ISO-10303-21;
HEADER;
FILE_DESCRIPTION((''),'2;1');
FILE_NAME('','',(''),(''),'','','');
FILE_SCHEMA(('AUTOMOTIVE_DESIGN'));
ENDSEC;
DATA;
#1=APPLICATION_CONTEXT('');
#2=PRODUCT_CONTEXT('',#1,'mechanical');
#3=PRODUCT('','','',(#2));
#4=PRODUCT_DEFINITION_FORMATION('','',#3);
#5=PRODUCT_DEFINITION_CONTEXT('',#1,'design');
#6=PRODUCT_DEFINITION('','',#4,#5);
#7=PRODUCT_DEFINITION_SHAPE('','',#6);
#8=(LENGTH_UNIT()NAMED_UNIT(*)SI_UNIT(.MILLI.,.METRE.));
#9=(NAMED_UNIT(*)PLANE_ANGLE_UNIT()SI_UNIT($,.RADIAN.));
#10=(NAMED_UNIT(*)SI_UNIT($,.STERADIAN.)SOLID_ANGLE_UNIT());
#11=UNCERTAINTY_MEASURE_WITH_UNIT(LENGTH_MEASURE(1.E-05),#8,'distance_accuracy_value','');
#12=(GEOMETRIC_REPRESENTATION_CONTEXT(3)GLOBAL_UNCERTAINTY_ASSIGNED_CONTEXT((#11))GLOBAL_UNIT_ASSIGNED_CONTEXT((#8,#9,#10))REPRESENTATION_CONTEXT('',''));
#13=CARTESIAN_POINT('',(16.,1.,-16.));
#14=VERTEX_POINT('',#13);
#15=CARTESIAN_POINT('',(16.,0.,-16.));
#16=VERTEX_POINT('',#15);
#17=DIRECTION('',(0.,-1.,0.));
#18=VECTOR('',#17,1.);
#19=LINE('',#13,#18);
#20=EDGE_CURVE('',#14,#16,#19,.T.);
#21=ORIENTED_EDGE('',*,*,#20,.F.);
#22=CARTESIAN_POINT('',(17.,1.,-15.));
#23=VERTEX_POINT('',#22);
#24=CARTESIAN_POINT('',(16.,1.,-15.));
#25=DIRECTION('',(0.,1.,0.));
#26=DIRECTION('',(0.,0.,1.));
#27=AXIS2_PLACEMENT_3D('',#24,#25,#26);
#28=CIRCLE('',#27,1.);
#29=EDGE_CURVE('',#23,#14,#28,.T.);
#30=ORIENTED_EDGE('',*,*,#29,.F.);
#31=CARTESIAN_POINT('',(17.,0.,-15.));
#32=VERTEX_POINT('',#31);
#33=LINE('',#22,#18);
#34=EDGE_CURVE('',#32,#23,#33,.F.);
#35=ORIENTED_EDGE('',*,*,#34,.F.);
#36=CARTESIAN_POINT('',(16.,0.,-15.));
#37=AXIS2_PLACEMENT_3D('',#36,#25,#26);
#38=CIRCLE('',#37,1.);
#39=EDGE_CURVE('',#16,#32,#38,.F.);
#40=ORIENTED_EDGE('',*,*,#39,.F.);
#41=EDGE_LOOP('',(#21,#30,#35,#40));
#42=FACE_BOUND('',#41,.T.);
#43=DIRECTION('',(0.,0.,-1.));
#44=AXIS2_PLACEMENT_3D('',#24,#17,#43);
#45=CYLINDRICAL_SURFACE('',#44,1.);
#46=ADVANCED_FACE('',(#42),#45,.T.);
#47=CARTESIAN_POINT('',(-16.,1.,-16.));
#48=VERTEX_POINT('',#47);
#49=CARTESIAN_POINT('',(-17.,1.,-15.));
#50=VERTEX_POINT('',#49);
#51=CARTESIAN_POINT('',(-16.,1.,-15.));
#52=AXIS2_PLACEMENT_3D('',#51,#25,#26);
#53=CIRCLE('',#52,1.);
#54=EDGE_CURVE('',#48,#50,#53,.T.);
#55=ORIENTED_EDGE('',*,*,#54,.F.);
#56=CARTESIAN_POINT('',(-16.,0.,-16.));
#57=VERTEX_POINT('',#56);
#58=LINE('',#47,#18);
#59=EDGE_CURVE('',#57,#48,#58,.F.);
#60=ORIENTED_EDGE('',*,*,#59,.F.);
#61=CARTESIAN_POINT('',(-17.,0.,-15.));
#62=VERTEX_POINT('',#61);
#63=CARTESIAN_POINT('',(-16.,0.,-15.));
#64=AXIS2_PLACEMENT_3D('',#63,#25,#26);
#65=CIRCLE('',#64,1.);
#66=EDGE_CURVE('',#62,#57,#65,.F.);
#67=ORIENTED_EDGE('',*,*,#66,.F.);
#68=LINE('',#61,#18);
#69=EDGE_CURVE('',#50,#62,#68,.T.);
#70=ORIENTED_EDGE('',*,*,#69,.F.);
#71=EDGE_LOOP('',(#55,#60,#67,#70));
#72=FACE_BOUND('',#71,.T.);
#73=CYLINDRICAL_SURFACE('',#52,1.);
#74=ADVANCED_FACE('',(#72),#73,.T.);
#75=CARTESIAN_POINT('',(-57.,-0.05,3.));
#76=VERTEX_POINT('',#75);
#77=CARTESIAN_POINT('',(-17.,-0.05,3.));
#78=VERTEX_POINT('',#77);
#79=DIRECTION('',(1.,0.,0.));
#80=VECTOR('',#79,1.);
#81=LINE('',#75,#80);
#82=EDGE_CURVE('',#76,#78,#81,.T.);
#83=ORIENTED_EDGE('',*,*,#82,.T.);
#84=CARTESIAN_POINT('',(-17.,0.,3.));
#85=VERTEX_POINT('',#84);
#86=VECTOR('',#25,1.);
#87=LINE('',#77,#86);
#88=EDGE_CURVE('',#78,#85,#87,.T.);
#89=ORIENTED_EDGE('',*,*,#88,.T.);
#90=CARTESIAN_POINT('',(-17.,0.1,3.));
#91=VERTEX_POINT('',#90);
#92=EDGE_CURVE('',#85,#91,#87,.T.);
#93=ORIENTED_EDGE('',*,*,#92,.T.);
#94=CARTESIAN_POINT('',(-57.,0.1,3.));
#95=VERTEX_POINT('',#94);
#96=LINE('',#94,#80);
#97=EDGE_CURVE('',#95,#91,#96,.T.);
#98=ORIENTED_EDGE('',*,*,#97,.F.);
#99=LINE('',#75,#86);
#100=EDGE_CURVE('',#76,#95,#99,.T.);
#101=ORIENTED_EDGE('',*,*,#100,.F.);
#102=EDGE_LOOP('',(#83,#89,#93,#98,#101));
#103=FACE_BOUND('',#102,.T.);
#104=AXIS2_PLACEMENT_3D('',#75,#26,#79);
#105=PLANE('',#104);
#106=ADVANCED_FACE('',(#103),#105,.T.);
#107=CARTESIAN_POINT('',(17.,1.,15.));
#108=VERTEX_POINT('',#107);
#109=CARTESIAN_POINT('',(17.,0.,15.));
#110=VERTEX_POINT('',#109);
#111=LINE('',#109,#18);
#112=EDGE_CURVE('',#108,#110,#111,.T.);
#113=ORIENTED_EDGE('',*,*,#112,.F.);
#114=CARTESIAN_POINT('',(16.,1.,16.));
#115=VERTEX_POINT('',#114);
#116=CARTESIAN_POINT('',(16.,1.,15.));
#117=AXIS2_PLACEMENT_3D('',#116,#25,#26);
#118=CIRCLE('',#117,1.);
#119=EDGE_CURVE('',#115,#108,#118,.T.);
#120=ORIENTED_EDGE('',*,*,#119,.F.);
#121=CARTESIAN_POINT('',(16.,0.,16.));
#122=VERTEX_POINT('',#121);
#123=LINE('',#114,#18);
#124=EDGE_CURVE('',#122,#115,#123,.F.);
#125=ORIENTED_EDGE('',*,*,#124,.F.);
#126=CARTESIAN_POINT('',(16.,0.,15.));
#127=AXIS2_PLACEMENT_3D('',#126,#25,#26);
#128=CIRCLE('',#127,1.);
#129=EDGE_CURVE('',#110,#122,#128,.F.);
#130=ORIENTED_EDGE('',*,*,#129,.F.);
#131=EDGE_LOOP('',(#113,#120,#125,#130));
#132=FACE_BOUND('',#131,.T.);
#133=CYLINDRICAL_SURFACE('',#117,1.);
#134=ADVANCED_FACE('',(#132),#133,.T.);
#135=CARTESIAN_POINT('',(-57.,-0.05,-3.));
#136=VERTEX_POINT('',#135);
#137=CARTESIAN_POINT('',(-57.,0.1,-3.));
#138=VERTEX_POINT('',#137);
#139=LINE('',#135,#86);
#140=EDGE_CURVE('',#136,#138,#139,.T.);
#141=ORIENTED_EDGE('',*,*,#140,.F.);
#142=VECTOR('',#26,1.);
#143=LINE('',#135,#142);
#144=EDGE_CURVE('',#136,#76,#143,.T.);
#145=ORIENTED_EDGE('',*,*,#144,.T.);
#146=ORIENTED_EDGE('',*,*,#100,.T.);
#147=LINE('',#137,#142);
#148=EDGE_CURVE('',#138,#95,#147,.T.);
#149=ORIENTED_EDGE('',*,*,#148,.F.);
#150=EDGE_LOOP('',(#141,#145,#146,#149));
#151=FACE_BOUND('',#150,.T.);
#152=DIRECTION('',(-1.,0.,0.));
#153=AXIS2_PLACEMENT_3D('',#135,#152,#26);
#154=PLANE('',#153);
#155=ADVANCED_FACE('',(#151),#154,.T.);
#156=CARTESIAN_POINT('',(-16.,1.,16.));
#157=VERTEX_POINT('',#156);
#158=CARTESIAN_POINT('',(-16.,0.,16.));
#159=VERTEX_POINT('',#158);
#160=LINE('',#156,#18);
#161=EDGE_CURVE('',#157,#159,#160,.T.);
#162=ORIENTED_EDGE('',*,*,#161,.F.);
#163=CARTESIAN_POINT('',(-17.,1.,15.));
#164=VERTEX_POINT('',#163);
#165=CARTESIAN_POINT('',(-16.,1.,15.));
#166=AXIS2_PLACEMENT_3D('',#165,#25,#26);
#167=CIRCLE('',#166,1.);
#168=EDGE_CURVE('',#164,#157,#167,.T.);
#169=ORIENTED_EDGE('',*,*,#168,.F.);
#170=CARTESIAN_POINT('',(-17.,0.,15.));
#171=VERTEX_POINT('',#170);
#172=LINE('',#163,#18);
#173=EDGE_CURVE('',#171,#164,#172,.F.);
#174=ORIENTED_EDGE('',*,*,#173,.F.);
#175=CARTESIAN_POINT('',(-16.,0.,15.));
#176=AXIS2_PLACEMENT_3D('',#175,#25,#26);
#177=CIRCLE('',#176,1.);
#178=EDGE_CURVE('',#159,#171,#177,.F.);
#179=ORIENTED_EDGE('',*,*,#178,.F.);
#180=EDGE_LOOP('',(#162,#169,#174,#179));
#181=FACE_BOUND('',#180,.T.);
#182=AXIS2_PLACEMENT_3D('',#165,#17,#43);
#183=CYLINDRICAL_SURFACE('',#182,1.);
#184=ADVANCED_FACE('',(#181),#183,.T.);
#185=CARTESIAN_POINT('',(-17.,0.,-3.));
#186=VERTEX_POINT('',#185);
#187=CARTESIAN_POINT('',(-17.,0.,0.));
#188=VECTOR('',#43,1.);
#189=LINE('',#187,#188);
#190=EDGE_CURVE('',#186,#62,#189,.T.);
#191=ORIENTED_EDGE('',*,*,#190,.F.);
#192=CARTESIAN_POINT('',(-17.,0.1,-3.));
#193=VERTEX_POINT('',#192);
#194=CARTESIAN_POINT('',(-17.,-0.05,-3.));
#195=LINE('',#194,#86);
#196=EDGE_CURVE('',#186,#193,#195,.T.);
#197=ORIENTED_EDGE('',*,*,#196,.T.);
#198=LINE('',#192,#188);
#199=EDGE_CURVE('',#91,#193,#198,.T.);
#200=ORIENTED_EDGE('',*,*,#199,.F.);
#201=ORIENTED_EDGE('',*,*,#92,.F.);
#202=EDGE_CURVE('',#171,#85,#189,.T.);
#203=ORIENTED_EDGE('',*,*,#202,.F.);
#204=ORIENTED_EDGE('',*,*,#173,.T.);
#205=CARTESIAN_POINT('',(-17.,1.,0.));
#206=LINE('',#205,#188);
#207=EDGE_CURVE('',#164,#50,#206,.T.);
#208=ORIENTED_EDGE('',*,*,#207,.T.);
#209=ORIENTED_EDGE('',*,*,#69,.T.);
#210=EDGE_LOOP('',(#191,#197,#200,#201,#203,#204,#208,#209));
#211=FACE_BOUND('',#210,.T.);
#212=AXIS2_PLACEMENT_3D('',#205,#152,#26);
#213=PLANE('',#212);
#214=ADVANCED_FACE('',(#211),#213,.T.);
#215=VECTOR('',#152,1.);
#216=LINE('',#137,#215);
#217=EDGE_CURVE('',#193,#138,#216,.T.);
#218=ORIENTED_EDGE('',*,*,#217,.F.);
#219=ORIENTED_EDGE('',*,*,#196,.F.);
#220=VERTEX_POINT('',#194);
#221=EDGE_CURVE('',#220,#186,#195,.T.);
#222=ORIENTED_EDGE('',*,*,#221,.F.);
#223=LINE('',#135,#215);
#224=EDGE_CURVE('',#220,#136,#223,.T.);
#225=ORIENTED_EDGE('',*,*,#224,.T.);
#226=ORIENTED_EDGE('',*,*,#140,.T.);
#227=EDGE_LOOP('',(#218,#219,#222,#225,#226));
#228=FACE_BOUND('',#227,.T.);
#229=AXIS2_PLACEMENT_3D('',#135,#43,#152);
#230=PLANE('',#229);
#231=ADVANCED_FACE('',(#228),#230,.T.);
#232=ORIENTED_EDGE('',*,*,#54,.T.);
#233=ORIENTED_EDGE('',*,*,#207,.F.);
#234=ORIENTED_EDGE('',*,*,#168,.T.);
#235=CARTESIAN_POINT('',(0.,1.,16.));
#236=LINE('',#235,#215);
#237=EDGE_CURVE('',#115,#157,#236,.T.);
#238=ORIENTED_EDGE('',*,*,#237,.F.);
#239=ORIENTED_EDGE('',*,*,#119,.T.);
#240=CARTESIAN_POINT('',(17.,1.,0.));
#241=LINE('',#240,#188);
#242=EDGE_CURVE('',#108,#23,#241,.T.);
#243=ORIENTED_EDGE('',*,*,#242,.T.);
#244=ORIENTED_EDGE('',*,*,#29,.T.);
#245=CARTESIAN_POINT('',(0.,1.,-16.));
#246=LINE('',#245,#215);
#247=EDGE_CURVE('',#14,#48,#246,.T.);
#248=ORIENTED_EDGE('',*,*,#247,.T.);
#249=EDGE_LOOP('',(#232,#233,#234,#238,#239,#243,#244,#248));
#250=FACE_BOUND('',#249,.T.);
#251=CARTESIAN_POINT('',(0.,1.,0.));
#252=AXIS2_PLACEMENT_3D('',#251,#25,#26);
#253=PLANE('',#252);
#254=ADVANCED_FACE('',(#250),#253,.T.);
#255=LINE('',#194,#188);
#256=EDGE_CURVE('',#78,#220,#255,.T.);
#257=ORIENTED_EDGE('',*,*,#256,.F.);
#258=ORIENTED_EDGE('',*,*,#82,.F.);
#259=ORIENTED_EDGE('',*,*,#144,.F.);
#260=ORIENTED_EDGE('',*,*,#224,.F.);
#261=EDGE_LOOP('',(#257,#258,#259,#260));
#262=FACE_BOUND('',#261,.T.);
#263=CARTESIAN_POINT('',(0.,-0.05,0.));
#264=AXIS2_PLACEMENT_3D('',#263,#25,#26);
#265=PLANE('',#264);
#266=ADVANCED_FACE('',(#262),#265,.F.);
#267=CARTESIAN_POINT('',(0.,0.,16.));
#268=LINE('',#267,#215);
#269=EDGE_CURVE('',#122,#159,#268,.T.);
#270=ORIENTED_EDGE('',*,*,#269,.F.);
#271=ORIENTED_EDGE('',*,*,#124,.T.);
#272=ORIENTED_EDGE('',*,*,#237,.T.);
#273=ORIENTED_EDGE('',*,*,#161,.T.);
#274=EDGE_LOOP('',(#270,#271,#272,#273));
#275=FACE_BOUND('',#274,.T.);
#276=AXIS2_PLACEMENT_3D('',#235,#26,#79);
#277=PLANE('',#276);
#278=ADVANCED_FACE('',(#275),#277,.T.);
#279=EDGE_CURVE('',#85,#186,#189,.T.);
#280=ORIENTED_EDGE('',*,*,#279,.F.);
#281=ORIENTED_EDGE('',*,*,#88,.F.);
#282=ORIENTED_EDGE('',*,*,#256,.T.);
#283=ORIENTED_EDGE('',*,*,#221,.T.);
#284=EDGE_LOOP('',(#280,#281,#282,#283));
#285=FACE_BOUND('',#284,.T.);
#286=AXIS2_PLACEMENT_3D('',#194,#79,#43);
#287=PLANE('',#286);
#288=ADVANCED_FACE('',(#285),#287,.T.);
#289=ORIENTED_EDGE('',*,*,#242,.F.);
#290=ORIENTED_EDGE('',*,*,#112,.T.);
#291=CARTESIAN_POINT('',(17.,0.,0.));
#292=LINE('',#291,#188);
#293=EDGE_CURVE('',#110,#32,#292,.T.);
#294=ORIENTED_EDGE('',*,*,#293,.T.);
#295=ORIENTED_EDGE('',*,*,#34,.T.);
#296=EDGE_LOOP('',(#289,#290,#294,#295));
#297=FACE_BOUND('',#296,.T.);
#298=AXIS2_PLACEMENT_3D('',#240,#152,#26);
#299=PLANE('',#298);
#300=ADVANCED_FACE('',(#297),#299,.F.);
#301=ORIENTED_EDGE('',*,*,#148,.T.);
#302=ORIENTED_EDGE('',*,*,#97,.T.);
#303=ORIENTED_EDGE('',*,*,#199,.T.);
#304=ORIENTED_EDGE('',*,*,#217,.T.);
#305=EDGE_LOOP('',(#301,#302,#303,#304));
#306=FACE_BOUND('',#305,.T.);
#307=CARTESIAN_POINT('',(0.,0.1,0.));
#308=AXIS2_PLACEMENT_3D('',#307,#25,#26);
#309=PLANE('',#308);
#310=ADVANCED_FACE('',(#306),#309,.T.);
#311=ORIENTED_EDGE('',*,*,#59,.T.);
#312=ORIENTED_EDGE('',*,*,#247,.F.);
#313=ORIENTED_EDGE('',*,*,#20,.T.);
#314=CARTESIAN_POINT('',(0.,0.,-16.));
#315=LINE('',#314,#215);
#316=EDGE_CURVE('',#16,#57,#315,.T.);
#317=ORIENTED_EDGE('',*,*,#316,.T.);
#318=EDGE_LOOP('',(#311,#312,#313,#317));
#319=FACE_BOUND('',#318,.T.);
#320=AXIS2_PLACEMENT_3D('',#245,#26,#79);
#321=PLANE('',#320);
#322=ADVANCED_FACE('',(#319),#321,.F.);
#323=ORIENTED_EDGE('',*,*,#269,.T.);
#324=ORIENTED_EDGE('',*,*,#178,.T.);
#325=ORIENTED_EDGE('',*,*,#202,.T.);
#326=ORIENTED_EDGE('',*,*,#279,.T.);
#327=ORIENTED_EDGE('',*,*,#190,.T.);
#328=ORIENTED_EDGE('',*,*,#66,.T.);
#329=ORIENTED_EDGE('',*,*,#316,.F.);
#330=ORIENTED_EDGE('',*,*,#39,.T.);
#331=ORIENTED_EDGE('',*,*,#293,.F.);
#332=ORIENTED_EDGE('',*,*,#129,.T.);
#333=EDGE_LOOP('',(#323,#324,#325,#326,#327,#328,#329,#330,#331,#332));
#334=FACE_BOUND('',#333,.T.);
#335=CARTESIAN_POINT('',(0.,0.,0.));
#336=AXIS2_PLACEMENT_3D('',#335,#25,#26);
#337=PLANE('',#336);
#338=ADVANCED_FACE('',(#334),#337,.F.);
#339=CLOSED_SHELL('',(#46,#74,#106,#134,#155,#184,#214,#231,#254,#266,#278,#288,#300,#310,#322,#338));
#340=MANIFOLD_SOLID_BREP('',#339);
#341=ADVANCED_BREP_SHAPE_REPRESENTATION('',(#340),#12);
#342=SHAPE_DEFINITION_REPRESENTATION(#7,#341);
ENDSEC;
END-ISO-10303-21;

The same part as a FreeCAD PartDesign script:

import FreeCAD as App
import Part
import Sketcher
Q = App.Units.Quantity


def edges_at(feature, points):
    """Names of the edges that pass closest to the given points."""
    edges = feature.Shape.Edges
    near = lambda p: min(range(len(edges)), key=lambda i: edges[i].distToShape(Part.Vertex(*p))[0])
    return sorted({f"Edge{near(p) + 1}" for p in points})

doc = App.newDocument("Part")
body = doc.addObject("PartDesign::Body", "Body")

sketch1 = doc.addObject("Sketcher::SketchObject", "Sketch")
body.addObject(sketch1)
sketch1.AttachmentSupport = (doc.XZ_Plane, [""])
sketch1.MapMode = "FlatFace"
sketch1.addGeometry(Part.LineSegment(App.Vector(-17, -16, 0), App.Vector(-17, 16, 0)), False)
sketch1.addGeometry(Part.LineSegment(App.Vector(-17, 16, 0), App.Vector(17, 16, 0)), False)
sketch1.addGeometry(Part.LineSegment(App.Vector(17, 16, 0), App.Vector(17, -16, 0)), False)
sketch1.addGeometry(Part.LineSegment(App.Vector(17, -16, 0), App.Vector(-17, -16, 0)), False)
sketch1.addConstraint(Sketcher.Constraint("Coincident", 0, 2, 1, 1))
sketch1.addConstraint(Sketcher.Constraint("Coincident", 1, 2, 2, 1))
sketch1.addConstraint(Sketcher.Constraint("Coincident", 2, 2, 3, 1))
sketch1.addConstraint(Sketcher.Constraint("Coincident", 3, 2, 0, 1))
sketch1.addConstraint(Sketcher.Constraint("Vertical", 0))
sketch1.addConstraint(Sketcher.Constraint("Horizontal", 1))
sketch1.addConstraint(Sketcher.Constraint("Vertical", 2))
sketch1.addConstraint(Sketcher.Constraint("Horizontal", 3))
sketch1.addConstraint(Sketcher.Constraint("Symmetric", 0, 2, 2, 2, -1, 1))
sketch1.addConstraint(Sketcher.Constraint("DistanceX", 1, 1, 1, 2, Q("34 mm")))
sketch1.addConstraint(Sketcher.Constraint("DistanceY", 0, 1, 0, 2, Q("32 mm")))
pad1 = doc.addObject("PartDesign::Pad", "Pad")
body.addObject(pad1)
pad1.Profile = sketch1
pad1.Length = 1
pad1.Reversed = True

sketch2 = doc.addObject("Sketcher::SketchObject", "Sketch001")
body.addObject(sketch2)
sketch2.AttachmentSupport = (doc.XZ_Plane, [""])
sketch2.MapMode = "FlatFace"
sketch2.addGeometry(Part.LineSegment(App.Vector(-57, -3, 0), App.Vector(-57, 3, 0)), False)
sketch2.addGeometry(Part.LineSegment(App.Vector(-57, 3, 0), App.Vector(-17, 3, 0)), False)
sketch2.addGeometry(Part.LineSegment(App.Vector(-17, 3, 0), App.Vector(-17, -3, 0)), False)
sketch2.addGeometry(Part.LineSegment(App.Vector(-17, -3, 0), App.Vector(-57, -3, 0)), False)
sketch2.addConstraint(Sketcher.Constraint("Coincident", 0, 2, 1, 1))
sketch2.addConstraint(Sketcher.Constraint("Coincident", 1, 2, 2, 1))
sketch2.addConstraint(Sketcher.Constraint("Coincident", 2, 2, 3, 1))
sketch2.addConstraint(Sketcher.Constraint("Coincident", 3, 2, 0, 1))
sketch2.addConstraint(Sketcher.Constraint("Vertical", 0))
sketch2.addConstraint(Sketcher.Constraint("Horizontal", 1))
sketch2.addConstraint(Sketcher.Constraint("Vertical", 2))
sketch2.addConstraint(Sketcher.Constraint("Horizontal", 3))
sketch2.addConstraint(Sketcher.Constraint("DistanceX", 1, 1, 1, 2, Q("40 mm")))
sketch2.addConstraint(Sketcher.Constraint("DistanceY", 0, 1, 0, 2, Q("6 mm")))
sketch2.addConstraint(Sketcher.Constraint("DistanceX", 0, 2, -1, 1, Q("57 mm")))
sketch2.addConstraint(Sketcher.Constraint("DistanceY", -1, 1, 0, 2, Q("3 mm")))
pad2 = doc.addObject("PartDesign::Pad", "Pad001")
body.addObject(pad2)
pad2.Profile = sketch2
pad2.Type = "TwoLengths"
pad2.Length = 0.1
pad2.Length2 = 0.05
pad2.Reversed = True
doc.recompute()

fillet = doc.addObject("PartDesign::Fillet", "Fillet")
body.addObject(fillet)
fillet.Base = (pad2, edges_at(pad2, [
    (-17, 0.5, -16),
    (17, 0.5, -16),
    (17, 0.5, 16),
    (-17, 0.5, 16),
]))
fillet.Radius = 1

doc.recompute()
